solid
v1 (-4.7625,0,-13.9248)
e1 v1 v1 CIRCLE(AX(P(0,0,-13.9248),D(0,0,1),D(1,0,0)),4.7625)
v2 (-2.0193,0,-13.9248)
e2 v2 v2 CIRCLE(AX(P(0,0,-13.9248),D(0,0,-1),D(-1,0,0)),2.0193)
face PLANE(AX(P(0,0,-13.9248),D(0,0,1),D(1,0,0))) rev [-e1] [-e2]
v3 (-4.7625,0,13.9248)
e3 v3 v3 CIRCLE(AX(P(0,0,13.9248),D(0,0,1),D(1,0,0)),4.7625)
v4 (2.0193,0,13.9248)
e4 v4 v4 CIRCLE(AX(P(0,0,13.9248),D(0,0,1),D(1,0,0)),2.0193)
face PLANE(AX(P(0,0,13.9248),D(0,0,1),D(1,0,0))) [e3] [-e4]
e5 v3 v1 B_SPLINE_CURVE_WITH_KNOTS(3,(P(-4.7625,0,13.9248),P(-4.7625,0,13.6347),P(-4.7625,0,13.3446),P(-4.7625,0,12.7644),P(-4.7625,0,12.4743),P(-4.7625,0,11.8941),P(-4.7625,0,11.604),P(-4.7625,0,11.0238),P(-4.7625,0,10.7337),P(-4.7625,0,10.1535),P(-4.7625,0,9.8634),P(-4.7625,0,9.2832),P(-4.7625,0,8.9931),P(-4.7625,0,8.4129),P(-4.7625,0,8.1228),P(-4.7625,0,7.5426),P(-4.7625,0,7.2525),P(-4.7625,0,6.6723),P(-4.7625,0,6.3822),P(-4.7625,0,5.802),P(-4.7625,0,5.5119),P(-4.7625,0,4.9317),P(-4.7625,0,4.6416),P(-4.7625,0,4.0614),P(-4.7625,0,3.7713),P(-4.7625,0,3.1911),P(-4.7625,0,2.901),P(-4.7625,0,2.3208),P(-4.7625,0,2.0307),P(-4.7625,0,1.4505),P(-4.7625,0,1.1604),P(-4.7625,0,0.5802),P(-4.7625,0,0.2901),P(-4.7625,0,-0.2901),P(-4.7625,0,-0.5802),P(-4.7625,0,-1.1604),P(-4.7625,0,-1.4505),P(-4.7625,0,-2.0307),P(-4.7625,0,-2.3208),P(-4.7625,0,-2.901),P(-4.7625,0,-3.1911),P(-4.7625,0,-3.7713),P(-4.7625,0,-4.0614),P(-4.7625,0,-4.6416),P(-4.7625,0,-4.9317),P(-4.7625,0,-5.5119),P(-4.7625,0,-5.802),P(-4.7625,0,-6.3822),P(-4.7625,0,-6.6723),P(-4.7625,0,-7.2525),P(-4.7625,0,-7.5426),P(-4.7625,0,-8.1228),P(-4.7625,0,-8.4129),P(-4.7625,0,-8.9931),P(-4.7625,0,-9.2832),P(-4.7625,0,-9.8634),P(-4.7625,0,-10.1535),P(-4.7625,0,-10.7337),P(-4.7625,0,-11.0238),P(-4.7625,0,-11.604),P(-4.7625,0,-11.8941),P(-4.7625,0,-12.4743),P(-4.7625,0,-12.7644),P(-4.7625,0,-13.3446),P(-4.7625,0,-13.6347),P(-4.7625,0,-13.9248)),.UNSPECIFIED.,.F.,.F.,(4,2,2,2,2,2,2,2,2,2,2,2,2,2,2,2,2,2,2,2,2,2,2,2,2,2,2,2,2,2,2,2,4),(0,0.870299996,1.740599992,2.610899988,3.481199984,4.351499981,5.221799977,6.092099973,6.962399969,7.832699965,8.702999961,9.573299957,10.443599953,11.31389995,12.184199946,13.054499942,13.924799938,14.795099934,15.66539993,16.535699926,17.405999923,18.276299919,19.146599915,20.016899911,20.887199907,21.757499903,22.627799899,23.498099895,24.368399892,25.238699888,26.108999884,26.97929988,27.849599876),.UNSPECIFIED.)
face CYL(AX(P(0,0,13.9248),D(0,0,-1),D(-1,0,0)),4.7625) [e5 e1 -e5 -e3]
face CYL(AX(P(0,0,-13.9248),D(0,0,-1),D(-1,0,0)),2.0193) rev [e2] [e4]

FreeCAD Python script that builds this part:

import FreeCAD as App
import Part
import Sketcher
from FreeCAD import Vector
Q = App.Units.Quantity

doc = App.newDocument("Part")
body = doc.addObject("PartDesign::Body", "Body")

# Sketch on XY plane
sketch1 = body.newObject("Sketcher::SketchObject", "Sketch")
sketch1.AttachmentSupport = (doc.getObject("XY_Plane"), [""])
sketch1.MapMode = "FlatFace"
sketch1.addGeometry(Part.Circle(Vector(0, 0, 0), Vector(0, 0, 1), 4.8), False)
sketch1.addConstraint([
    Sketcher.Constraint("Coincident", 0, 3, -1, 1),
    Sketcher.Constraint("Diameter", 0, Q("0.375 in")),
])
pad1 = body.newObject("PartDesign::Pad", "Pad")
pad1.Profile = sketch1
pad1.Length = 27.8496
pad1.Midplane = True

# Sketch on XY plane
sketch2 = body.newObject("Sketcher::SketchObject", "Sketch001")
sketch2.AttachmentSupport = (doc.getObject("XY_Plane"), [""])
sketch2.MapMode = "FlatFace"
sketch2.AttachmentOffset = App.Placement(Vector(0, 0, 13.9248), App.Rotation())
sketch2.addGeometry(Part.Circle(Vector(0, 0, 0), Vector(0, 0, 1), 2), False)
sketch2.addConstraint([
    Sketcher.Constraint("Coincident", 0, 3, -1, 1),
    Sketcher.Constraint("Diameter", 0, Q("0.159 in")),
])
doc.recompute()
hole = body.newObject("PartDesign::Hole", "Hole")
hole.Profile = sketch2
hole.ThreadType = "None"
hole.Diameter = Q("0.159 in")
hole.DepthType = "Dimension"
hole.Depth = Q("0.59 in")
hole.DrillPoint = "Angled"
hole.DrillPointAngle = 118

# Sketch on XY plane
sketch3 = body.newObject("Sketcher::SketchObject", "Sketch002")
sketch3.AttachmentSupport = (doc.getObject("XY_Plane"), [""])
sketch3.MapMode = "FlatFace"
sketch3.AttachmentOffset = App.Placement(Vector(0, 0, -13.9248), App.Rotation())
sketch3.addGeometry(Part.Circle(Vector(0, 0, 0), Vector(0, 0, 1), 2), False)
sketch3.addConstraint([
    Sketcher.Constraint("Coincident", 0, 3, -1, 1),
    Sketcher.Constraint("Diameter", 0, Q("0.159 in")),
])
doc.recompute()
hole2 = body.newObject("PartDesign::Hole", "Hole001")
hole2.Profile = sketch3
hole2.ThreadType = "None"
hole2.Diameter = Q("0.159 in")
hole2.DepthType = "Dimension"
hole2.Depth = Q("0.59 in")
hole2.DrillPoint = "Angled"
hole2.DrillPointAngle = 118
hole2.Reversed = True

doc.recompute()
